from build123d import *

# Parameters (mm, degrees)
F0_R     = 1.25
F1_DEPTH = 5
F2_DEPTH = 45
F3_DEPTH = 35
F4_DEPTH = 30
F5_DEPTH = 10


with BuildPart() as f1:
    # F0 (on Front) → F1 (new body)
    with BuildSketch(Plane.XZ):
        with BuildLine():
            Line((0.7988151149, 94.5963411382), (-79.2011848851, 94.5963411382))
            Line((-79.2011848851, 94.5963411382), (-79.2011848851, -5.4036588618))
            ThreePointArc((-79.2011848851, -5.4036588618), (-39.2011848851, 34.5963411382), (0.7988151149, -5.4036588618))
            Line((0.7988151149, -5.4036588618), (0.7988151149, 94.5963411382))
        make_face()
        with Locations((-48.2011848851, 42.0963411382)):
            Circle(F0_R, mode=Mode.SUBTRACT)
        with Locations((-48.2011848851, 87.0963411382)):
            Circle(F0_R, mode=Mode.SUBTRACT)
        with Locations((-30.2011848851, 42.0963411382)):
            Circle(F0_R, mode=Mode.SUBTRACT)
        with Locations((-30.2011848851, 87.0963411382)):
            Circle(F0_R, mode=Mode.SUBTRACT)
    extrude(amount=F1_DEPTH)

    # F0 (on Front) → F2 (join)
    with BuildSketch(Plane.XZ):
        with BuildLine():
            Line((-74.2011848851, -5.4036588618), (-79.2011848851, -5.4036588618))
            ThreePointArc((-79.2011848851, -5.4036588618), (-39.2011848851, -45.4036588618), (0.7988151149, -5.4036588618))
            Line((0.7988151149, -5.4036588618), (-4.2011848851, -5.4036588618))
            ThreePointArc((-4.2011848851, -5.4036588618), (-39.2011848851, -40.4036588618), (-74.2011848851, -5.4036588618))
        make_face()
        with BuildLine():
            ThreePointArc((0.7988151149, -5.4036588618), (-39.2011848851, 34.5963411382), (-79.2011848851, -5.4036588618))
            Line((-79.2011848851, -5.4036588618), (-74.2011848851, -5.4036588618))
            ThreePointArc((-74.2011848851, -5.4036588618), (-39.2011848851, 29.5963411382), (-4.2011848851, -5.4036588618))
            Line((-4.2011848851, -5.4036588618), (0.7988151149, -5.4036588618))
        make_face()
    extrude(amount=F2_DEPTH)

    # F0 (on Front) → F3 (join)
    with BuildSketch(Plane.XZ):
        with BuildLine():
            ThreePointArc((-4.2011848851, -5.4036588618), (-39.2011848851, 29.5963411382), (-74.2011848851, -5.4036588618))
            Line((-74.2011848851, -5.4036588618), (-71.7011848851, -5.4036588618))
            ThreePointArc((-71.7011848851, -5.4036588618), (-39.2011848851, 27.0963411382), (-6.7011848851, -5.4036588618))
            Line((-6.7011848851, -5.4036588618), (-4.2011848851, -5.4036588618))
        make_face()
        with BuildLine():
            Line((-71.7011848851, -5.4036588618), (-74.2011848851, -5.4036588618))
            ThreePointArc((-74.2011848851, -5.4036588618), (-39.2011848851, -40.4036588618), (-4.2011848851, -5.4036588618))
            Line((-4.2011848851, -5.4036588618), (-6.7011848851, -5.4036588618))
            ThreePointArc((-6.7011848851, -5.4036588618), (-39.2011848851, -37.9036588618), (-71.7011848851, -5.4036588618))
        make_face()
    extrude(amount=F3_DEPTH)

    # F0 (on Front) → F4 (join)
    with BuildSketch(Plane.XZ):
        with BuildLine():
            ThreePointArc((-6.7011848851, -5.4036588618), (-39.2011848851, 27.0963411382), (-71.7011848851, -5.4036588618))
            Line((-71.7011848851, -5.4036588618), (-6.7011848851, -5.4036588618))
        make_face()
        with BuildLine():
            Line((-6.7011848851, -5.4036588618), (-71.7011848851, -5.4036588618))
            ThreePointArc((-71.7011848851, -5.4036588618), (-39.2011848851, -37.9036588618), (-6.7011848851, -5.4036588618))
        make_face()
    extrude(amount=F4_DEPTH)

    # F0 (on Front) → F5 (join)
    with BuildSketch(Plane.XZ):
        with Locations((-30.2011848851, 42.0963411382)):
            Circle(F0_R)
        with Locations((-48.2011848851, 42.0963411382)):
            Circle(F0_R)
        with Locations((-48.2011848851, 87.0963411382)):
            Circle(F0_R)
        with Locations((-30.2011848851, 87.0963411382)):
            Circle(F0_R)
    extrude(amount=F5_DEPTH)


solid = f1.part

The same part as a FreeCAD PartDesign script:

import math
import FreeCAD as App
import Part
import Sketcher
Q = App.Units.Quantity

doc = App.newDocument("Part")
body = doc.addObject("PartDesign::Body", "Body")

sketch1 = body.newObject("Sketcher::SketchObject", "Sketch")
sketch1.AttachmentSupport = (doc.getObject("XZ_Plane"), [""])
sketch1.MapMode = "FlatFace"
sketch1.addGeometry(Part.LineSegment(App.Vector(0.798815, 94.596341, 0), App.Vector(-79.201185, 94.596341, 0)), False)
sketch1.addGeometry(Part.LineSegment(App.Vector(-79.201185, 94.596341, 0), App.Vector(-79.201185, -5.403659, 0)), False)
sketch1.addGeometry(Part.ArcOfCircle(Part.Circle(App.Vector(-39.201185, -5.403659, 0), App.Vector(0, 0, 1), 40), math.radians(0), math.radians(180)), False)
sketch1.addGeometry(Part.LineSegment(App.Vector(0.798815, -5.403659, 0), App.Vector(0.798815, 94.596341, 0)), False)
sketch1.addGeometry(Part.Circle(App.Vector(-48.201185, 42.096341, 0), App.Vector(0, 0, 1), 1.25), False)
sketch1.addGeometry(Part.Circle(App.Vector(-30.201185, 42.096341, 0), App.Vector(0, 0, 1), 1.25), False)
sketch1.addGeometry(Part.Circle(App.Vector(-48.201185, 87.096341, 0), App.Vector(0, 0, 1), 1.25), False)
sketch1.addGeometry(Part.Circle(App.Vector(-30.201185, 87.096341, 0), App.Vector(0, 0, 1), 1.25), False)
sketch1.addConstraint(Sketcher.Constraint("Coincident", 0, 2, 1, 1))
sketch1.addConstraint(Sketcher.Constraint("Tangent", 1, 2, 2, 2))
sketch1.addConstraint(Sketcher.Constraint("Tangent", 2, 1, 3, 1))
sketch1.addConstraint(Sketcher.Constraint("Coincident", 3, 2, 0, 1))
sketch1.addConstraint(Sketcher.Constraint("Horizontal", 0))
sketch1.addConstraint(Sketcher.Constraint("Vertical", 1))
sketch1.addConstraint(Sketcher.Constraint("Vertical", 3))
sketch1.addConstraint(Sketcher.Constraint("Equal", 4, 5))
sketch1.addConstraint(Sketcher.Constraint("Equal", 5, 6))
sketch1.addConstraint(Sketcher.Constraint("Equal", 6, 7))
sketch1.addConstraint(Sketcher.Constraint("Horizontal", 4, 3, 5, 3))
sketch1.addConstraint(Sketcher.Constraint("Horizontal", 6, 3, 7, 3))
sketch1.addConstraint(Sketcher.Constraint("Vertical", 4, 3, 6, 3))
sketch1.addConstraint(Sketcher.Constraint("Vertical", 5, 3, 7, 3))
sketch1.addConstraint(Sketcher.Constraint("Radius", 2, Q("40 mm")))
sketch1.addConstraint(Sketcher.Constraint("Diameter", 4, Q("2.5 mm")))
sketch1.addConstraint(Sketcher.Constraint("DistanceY", 1, 2, 1, 1, Q("100 mm")))
sketch1.addConstraint(Sketcher.Constraint("DistanceX", 4, 3, 2, 3, Q("9 mm")))
sketch1.addConstraint(Sketcher.Constraint("DistanceX", 4, 3, 5, 3, Q("18 mm")))
sketch1.addConstraint(Sketcher.Constraint("DistanceY", 4, 3, 6, 3, Q("45 mm")))
sketch1.addConstraint(Sketcher.Constraint("DistanceY", 2, 3, 4, 3, Q("47.5 mm")))
sketch1.addConstraint(Sketcher.Constraint("DistanceY", 2, 3, -1, 1, Q("5.403659 mm")))
sketch1.addConstraint(Sketcher.Constraint("DistanceX", 2, 3, -1, 1, Q("39.201185 mm")))
pad1 = body.newObject("PartDesign::Pad", "Pad")
pad1.Profile = sketch1
pad1.Length = 5

sketch2 = body.newObject("Sketcher::SketchObject", "Sketch001")
sketch2.AttachmentSupport = (doc.getObject("XZ_Plane"), [""])
sketch2.MapMode = "FlatFace"
sketch2.addGeometry(Part.Circle(App.Vector(-39.201185, -5.403659, 0), App.Vector(0, 0, 1), 40), False)
sketch2.addGeometry(Part.Circle(App.Vector(-39.201185, -5.403659, 0), App.Vector(0, 0, 1), 35), False)
sketch2.addConstraint(Sketcher.Constraint("Coincident", 1, 3, 0, 3))
sketch2.addConstraint(Sketcher.Constraint("Diameter", 0, Q("80 mm")))
sketch2.addConstraint(Sketcher.Constraint("Diameter", 1, Q("70 mm")))
sketch2.addConstraint(Sketcher.Constraint("DistanceY", 0, 3, -1, 1, Q("5.403659 mm")))
sketch2.addConstraint(Sketcher.Constraint("DistanceX", 0, 3, -1, 1, Q("39.201185 mm")))
pad2 = body.newObject("PartDesign::Pad", "Pad001")
pad2.Profile = sketch2
pad2.Length = 45

sketch3 = body.newObject("Sketcher::SketchObject", "Sketch002")
sketch3.AttachmentSupport = (doc.getObject("XZ_Plane"), [""])
sketch3.MapMode = "FlatFace"
sketch3.addGeometry(Part.Circle(App.Vector(-39.201185, -5.403659, 0), App.Vector(0, 0, 1), 35), False)
sketch3.addGeometry(Part.Circle(App.Vector(-39.201185, -5.403659, 0), App.Vector(0, 0, 1), 32.5), False)
sketch3.addConstraint(Sketcher.Constraint("Coincident", 1, 3, 0, 3))
sketch3.addConstraint(Sketcher.Constraint("Diameter", 0, Q("70 mm")))
sketch3.addConstraint(Sketcher.Constraint("Diameter", 1, Q("65 mm")))
sketch3.addConstraint(Sketcher.Constraint("DistanceY", 0, 3, -1, 1, Q("5.403659 mm")))
sketch3.addConstraint(Sketcher.Constraint("DistanceX", 0, 3, -1, 1, Q("39.201185 mm")))
pad3 = body.newObject("PartDesign::Pad", "Pad002")
pad3.Profile = sketch3
pad3.Length = 35

sketch4 = body.newObject("Sketcher::SketchObject", "Sketch003")
sketch4.AttachmentSupport = (doc.getObject("XZ_Plane"), [""])
sketch4.MapMode = "FlatFace"
sketch4.addGeometry(Part.Circle(App.Vector(-39.201185, -5.403659, 0), App.Vector(0, 0, 1), 32.5), False)
sketch4.addConstraint(Sketcher.Constraint("Diameter", 0, Q("65 mm")))
sketch4.addConstraint(Sketcher.Constraint("DistanceY", 0, 3, -1, 1, Q("5.403659 mm")))
sketch4.addConstraint(Sketcher.Constraint("DistanceX", 0, 3, -1, 1, Q("39.201185 mm")))
pad4 = body.newObject("PartDesign::Pad", "Pad003")
pad4.Profile = sketch4
pad4.Length = 30

sketch5 = body.newObject("Sketcher::SketchObject", "Sketch004")
sketch5.AttachmentSupport = (doc.getObject("XZ_Plane"), [""])
sketch5.MapMode = "FlatFace"
sketch5.addGeometry(Part.Circle(App.Vector(-30.201185, 42.096341, 0), App.Vector(0, 0, 1), 1.25), False)
sketch5.addGeometry(Part.Circle(App.Vector(-48.201185, 42.096341, 0), App.Vector(0, 0, 1), 1.25), False)
sketch5.addGeometry(Part.Circle(App.Vector(-48.201185, 87.096341, 0), App.Vector(0, 0, 1), 1.25), False)
sketch5.addGeometry(Part.Circle(App.Vector(-30.201185, 87.096341, 0), App.Vector(0, 0, 1), 1.25), False)
sketch5.addConstraint(Sketcher.Constraint("Equal", 0, 1))
sketch5.addConstraint(Sketcher.Constraint("Equal", 1, 2))
sketch5.addConstraint(Sketcher.Constraint("Equal", 2, 3))
sketch5.addConstraint(Sketcher.Constraint("Horizontal", 0, 3, 1, 3))
sketch5.addConstraint(Sketcher.Constraint("Horizontal", 2, 3, 3, 3))
sketch5.addConstraint(Sketcher.Constraint("Vertical", 1, 3, 2, 3))
sketch5.addConstraint(Sketcher.Constraint("Vertical", 0, 3, 3, 3))
sketch5.addConstraint(Sketcher.Constraint("Diameter", 0, Q("2.5 mm")))
sketch5.addConstraint(Sketcher.Constraint("DistanceX", 1, 3, 0, 3, Q("18 mm")))
sketch5.addConstraint(Sketcher.Constraint("DistanceY", 1, 3, 2, 3, Q("45 mm")))
sketch5.addConstraint(Sketcher.Constraint("DistanceY", -1, 1, 0, 3, Q("42.096341 mm")))
sketch5.addConstraint(Sketcher.Constraint("DistanceX", 0, 3, -1, 1, Q("30.201185 mm")))
pad5 = body.newObject("PartDesign::Pad", "Pad004")
pad5.Profile = sketch5
pad5.Length = 10

doc.recompute()
